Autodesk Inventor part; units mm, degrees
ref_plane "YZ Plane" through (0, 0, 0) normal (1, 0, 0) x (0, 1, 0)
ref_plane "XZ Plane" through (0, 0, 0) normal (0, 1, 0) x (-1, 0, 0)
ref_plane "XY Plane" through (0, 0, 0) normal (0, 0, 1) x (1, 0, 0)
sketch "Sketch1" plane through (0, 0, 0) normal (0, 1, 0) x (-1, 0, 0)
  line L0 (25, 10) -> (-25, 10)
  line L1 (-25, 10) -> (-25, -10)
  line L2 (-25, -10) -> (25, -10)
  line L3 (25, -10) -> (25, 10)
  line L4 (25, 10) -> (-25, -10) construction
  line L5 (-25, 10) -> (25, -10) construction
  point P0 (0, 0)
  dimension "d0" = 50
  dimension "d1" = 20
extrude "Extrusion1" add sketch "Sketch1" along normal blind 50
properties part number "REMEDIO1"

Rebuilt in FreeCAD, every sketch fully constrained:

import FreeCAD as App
import Part
import Sketcher

doc = App.newDocument("Part")
body = doc.addObject("PartDesign::Body", "Body")

sketch1 = body.newObject("Sketcher::SketchObject", "Sketch")
sketch1.AttachmentSupport = (doc.getObject("XZ_Plane"), [""])
sketch1.MapMode = "FlatFace"
sketch1.addGeometry(Part.LineSegment(App.Vector(-25, -10, 0), App.Vector(-25, 10, 0)), False)
sketch1.addGeometry(Part.LineSegment(App.Vector(-25, 10, 0), App.Vector(25, 10, 0)), False)
sketch1.addGeometry(Part.LineSegment(App.Vector(25, 10, 0), App.Vector(25, -10, 0)), False)
sketch1.addGeometry(Part.LineSegment(App.Vector(25, -10, 0), App.Vector(-25, -10, 0)), False)
sketch1.addConstraint(Sketcher.Constraint("Coincident", 0, 2, 1, 1))
sketch1.addConstraint(Sketcher.Constraint("Coincident", 1, 2, 2, 1))
sketch1.addConstraint(Sketcher.Constraint("Coincident", 2, 2, 3, 1))
sketch1.addConstraint(Sketcher.Constraint("Coincident", 3, 2, 0, 1))
sketch1.addConstraint(Sketcher.Constraint("Vertical", 0))
sketch1.addConstraint(Sketcher.Constraint("Horizontal", 1))
sketch1.addConstraint(Sketcher.Constraint("Vertical", 2))
sketch1.addConstraint(Sketcher.Constraint("Horizontal", 3))
sketch1.addConstraint(Sketcher.Constraint("Symmetric", 0, 2, 2, 2, -1, 1))
sketch1.addConstraint(Sketcher.Constraint("DistanceX", 1, 1, 1, 2, 50.0))
sketch1.addConstraint(Sketcher.Constraint("DistanceY", 0, 1, 0, 2, 20.0))
pad1 = body.newObject("PartDesign::Pad", "Pad")
pad1.Profile = sketch1
pad1.Length = 50
pad1.Reversed = True

doc.recompute()
